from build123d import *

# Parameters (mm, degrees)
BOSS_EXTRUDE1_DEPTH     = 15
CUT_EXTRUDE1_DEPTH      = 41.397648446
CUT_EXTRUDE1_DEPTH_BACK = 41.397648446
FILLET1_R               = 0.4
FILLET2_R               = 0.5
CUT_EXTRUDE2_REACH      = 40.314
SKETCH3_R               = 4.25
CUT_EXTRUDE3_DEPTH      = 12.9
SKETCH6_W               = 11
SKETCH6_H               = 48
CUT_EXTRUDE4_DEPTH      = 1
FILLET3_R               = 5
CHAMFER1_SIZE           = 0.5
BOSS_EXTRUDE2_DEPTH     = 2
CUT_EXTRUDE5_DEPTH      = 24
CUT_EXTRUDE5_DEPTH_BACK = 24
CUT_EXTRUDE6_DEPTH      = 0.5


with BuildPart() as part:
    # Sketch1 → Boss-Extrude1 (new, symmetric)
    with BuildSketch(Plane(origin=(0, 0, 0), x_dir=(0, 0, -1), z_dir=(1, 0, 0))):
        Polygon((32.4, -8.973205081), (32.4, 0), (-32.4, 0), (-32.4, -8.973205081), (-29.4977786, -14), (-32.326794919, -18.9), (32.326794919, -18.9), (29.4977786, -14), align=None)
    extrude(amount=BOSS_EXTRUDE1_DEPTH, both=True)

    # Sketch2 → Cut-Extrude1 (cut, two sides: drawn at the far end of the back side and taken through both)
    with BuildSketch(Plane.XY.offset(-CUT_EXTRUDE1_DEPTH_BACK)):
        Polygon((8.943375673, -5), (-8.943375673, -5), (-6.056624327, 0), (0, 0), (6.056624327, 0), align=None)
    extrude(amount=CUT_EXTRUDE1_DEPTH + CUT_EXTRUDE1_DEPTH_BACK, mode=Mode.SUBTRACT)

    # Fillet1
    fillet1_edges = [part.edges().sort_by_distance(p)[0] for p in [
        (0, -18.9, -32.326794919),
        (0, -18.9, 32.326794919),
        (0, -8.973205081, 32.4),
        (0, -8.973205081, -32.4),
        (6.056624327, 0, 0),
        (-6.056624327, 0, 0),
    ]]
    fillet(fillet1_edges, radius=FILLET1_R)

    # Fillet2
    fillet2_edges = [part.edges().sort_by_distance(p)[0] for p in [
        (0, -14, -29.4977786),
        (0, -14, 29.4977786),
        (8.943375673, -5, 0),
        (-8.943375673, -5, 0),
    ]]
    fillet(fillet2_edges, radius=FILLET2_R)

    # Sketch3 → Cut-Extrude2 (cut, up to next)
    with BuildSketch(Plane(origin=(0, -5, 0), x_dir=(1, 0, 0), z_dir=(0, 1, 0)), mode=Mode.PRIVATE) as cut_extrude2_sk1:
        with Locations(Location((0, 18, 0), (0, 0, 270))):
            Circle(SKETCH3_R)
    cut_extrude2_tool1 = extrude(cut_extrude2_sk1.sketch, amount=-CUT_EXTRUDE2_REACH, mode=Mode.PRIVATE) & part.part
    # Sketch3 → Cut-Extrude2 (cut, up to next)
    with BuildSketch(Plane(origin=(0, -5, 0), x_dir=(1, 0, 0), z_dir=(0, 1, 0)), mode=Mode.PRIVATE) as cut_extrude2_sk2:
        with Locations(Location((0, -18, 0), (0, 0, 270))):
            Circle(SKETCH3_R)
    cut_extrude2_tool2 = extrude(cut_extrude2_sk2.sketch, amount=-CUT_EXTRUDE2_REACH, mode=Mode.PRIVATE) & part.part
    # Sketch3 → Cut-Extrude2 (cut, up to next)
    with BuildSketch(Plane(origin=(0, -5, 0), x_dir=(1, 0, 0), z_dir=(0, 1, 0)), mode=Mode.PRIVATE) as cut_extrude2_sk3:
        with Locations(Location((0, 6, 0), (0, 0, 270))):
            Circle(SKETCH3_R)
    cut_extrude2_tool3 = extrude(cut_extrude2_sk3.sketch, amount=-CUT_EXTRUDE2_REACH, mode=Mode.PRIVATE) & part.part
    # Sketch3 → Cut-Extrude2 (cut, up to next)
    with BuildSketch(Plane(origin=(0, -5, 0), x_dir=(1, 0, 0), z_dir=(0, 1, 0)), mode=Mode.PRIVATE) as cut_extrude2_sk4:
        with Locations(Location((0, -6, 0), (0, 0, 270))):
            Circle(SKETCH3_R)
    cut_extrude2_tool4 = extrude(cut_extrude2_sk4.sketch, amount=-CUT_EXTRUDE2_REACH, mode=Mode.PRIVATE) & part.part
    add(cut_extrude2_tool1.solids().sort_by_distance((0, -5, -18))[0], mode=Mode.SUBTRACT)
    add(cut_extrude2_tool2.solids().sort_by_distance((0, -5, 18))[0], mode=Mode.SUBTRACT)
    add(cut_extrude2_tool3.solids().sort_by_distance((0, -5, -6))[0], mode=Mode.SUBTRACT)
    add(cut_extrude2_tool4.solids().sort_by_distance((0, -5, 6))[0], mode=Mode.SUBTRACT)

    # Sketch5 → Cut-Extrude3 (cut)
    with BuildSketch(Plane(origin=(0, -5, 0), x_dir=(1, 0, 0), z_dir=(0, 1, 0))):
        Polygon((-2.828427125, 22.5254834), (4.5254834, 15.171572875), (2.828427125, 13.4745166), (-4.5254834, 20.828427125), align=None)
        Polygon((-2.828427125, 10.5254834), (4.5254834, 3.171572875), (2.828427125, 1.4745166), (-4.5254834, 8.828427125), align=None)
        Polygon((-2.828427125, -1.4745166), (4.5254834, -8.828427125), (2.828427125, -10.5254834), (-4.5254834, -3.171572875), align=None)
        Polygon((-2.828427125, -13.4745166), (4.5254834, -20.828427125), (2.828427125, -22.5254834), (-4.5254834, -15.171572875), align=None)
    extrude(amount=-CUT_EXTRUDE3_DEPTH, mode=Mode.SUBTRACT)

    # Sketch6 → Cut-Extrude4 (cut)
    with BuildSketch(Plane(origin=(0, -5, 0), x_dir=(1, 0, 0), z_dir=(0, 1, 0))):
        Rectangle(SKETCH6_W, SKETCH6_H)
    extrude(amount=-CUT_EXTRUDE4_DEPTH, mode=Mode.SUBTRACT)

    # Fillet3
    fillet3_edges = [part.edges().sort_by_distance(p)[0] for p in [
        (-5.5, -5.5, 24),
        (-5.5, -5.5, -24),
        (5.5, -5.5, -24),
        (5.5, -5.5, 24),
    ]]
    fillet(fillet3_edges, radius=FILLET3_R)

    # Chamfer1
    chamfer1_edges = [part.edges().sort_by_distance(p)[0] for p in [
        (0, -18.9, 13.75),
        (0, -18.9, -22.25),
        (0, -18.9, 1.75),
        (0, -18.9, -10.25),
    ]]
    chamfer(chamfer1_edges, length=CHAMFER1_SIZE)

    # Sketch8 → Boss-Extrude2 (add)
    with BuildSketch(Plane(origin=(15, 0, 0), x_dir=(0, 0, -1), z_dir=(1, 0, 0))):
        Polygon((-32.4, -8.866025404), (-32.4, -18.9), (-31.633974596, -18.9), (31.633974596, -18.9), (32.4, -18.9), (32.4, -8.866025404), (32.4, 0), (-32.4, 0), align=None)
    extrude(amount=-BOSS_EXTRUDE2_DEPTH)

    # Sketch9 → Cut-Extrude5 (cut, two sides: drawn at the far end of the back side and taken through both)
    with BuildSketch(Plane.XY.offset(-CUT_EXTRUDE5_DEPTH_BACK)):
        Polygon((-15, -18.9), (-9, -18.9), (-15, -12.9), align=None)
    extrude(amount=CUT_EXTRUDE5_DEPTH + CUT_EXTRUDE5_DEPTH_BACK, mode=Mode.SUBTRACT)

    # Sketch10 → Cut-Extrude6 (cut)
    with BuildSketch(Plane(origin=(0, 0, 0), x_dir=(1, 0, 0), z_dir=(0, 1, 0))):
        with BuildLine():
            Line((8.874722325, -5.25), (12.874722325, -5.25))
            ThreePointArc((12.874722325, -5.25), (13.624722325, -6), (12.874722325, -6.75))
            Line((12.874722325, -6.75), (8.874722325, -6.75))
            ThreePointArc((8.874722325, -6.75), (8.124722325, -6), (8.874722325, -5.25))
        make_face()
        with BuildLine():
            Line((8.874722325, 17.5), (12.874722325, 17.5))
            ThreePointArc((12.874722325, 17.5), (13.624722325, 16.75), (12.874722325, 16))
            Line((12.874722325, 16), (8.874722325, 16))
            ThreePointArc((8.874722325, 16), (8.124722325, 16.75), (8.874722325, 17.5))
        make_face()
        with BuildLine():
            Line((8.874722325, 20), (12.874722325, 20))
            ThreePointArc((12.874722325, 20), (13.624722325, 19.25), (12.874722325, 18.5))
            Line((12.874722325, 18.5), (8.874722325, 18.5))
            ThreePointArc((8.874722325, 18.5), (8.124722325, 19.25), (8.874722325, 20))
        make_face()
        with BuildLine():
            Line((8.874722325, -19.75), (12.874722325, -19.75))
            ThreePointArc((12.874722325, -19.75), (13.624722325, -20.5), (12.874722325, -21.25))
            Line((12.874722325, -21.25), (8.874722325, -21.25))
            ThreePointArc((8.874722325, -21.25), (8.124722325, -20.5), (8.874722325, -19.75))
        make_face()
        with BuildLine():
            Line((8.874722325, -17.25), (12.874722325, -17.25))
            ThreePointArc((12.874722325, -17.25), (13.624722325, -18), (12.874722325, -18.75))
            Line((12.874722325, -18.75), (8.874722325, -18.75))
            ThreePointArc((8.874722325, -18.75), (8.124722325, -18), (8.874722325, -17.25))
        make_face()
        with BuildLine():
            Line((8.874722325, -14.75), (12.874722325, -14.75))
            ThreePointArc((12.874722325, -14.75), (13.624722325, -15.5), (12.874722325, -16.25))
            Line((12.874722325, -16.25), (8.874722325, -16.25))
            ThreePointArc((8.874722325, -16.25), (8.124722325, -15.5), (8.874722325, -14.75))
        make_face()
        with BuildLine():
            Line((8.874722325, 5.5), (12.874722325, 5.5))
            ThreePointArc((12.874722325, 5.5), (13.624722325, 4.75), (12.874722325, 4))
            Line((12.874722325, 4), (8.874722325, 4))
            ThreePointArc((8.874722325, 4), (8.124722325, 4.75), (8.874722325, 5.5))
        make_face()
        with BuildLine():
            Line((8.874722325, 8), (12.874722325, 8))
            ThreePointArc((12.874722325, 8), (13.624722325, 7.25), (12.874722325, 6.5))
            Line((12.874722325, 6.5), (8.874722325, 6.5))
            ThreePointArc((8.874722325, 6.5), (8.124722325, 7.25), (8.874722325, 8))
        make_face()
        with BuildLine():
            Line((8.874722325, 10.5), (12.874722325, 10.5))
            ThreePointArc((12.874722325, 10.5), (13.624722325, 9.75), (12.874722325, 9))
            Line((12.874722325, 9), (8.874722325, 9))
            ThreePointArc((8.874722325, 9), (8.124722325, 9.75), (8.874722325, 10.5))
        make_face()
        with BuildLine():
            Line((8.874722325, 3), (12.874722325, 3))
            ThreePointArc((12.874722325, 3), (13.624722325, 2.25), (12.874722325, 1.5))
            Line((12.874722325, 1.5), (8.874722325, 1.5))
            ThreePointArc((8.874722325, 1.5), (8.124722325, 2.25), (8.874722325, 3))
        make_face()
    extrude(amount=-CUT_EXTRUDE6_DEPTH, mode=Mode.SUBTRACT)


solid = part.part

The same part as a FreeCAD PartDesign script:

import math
import FreeCAD as App
import Part
import Sketcher
Q = App.Units.Quantity


def edges_at(feature, points):
    """Names of the edges that pass closest to the given points."""
    edges = feature.Shape.Edges
    near = lambda p: min(range(len(edges)), key=lambda i: edges[i].distToShape(Part.Vertex(*p))[0])
    return sorted({f"Edge{near(p) + 1}" for p in points})


def add_polygon(sketch, points):
    """Adds a closed chain of lines whose ends are joined by coincident constraints."""
    first, n = sketch.GeometryCount, len(points)
    for a, b in zip(points, points[1:] + points[:1]):
        sketch.addGeometry(Part.LineSegment(App.Vector(*a, 0), App.Vector(*b, 0)), False)
    for i in range(n):
        sketch.addConstraint(Sketcher.Constraint("Coincident", first + i, 2, first + (i + 1) % n, 1))

doc = App.newDocument("Part")
body = doc.addObject("PartDesign::Body", "Body")

# Sketch on YZ plane
sketch1 = doc.addObject("Sketcher::SketchObject", "Sketch")
body.addObject(sketch1)
sketch1.AttachmentSupport = (doc.YZ_Plane, [""])
sketch1.MapMode = "FlatFace"
add_polygon(sketch1, [(-9, -32), (0, -32), (0, 32), (-9, 32), (-14, 29), (-19, 32), (-19, -32), (-14, -29)])  # lines 0-7
sketch1.addConstraint(Sketcher.Constraint("Horizontal", 0))
sketch1.addConstraint(Sketcher.Constraint("Vertical", 1))
sketch1.addConstraint(Sketcher.Constraint("Horizontal", 2))
sketch1.addConstraint(Sketcher.Constraint("Vertical", 5))
sketch1.addConstraint(Sketcher.Constraint("Symmetric", 0, 2, 1, 2, -1, 1))
sketch1.addConstraint(Sketcher.Constraint("Symmetric", 3, 2, 6, 2, -1))
sketch1.addConstraint(Sketcher.Constraint("Parallel", 3, 6))
sketch1.addConstraint(Sketcher.Constraint("Parallel", 4, 7))
sketch1.addConstraint(Sketcher.Constraint("Vertical", 2, 2, 7, 2))
sketch1.addConstraint(Sketcher.Constraint("Angle", 3, Q("-150 deg")))
sketch1.addConstraint(Sketcher.Constraint("DistanceY", 1, 1, 1, 2, Q("64.8 mm")))
sketch1.addConstraint(Sketcher.Constraint("DistanceX", 3, 2, -1, 1, Q("14 mm")))
sketch1.addConstraint(Sketcher.Constraint("DistanceX", 4, 2, -1, 1, Q("18.9 mm")))
sketch1.addConstraint(Sketcher.Constraint("DistanceY", 5, 2, 5, 1, Q("64.65359 mm")))
pad1 = doc.addObject("PartDesign::Pad", "Pad")
body.addObject(pad1)
pad1.Profile = sketch1
pad1.Length = 30
pad1.Midplane = True

# Sketch on XY plane
sketch2 = doc.addObject("Sketcher::SketchObject", "Sketch001")
body.addObject(sketch2)
sketch2.AttachmentSupport = (doc.XY_Plane, [""])
sketch2.MapMode = "FlatFace"
add_polygon(sketch2, [(-9, -5), (9, -5), (6, 0), (-6, 0)])  # lines 0-3
sketch2.addConstraint(Sketcher.Constraint("Horizontal", 0))
sketch2.addConstraint(Sketcher.Constraint("Horizontal", 2))
sketch2.addConstraint(Sketcher.Constraint("Symmetric", 1, 2, 2, 2, -1, 1))
sketch2.addConstraint(Sketcher.Constraint("Equal", 1, 3))
sketch2.addConstraint(Sketcher.Constraint("Angle", 1, Q("120 deg")))
sketch2.addConstraint(Sketcher.Constraint("DistanceY", 0, 2, -1, 1, Q("5 mm")))
sketch2.addConstraint(Sketcher.Constraint("DistanceX", 2, 2, 0, 2, Q("15 mm")))
pocket1 = doc.addObject("PartDesign::Pocket", "Pocket")
body.addObject(pocket1)
pocket1.Profile = sketch2
pocket1.Type = "ThroughAll"
pocket1.Midplane = True
doc.recompute()

fillet = doc.addObject("PartDesign::Fillet", "Fillet")
body.addObject(fillet)
fillet.Base = (pocket1, edges_at(pocket1, [
    (0, -18.9, -32.327),
    (0, -18.9, 32.327),
    (0, -8.973, 32.4),
    (0, -8.973, -32.4),
    (6.057, 0, 0),
    (-6.057, 0, 0),
]))
fillet.Radius = 0.4
doc.recompute()

fillet2 = doc.addObject("PartDesign::Fillet", "Fillet001")
body.addObject(fillet2)
fillet2.Base = (fillet, edges_at(fillet, [
    (0, -14, -29.498),
    (0, -14, 29.498),
    (8.943, -5, 0),
    (-8.943, -5, 0),
]))
fillet2.Radius = 0.5

# Sketch on XZ plane
sketch3 = doc.addObject("Sketcher::SketchObject", "Sketch002")
body.addObject(sketch3)
sketch3.AttachmentSupport = (doc.XZ_Plane, [""])
sketch3.MapMode = "FlatFace"
sketch3.AttachmentOffset = App.Placement(App.Vector(0, 0, 5), App.Rotation())
sketch3.addGeometry(Part.Circle(App.Vector(0, -18, 0), App.Vector(0, 0, 1), 4.2), False)
sketch3.addConstraint(Sketcher.Constraint("PointOnObject", 0, 3, -2))
sketch3.addConstraint(Sketcher.Constraint("Diameter", 0, Q("8.5 mm")))
sketch3.addConstraint(Sketcher.Constraint("DistanceY", 0, 3, -1, 1, Q("18 mm")))
pocket2 = doc.addObject("PartDesign::Pocket", "Pocket001")
body.addObject(pocket2)
pocket2.Profile = sketch3
pocket2.Type = "UpToFirst"
pocket2.Reversed = True

# Sketch on XZ plane
sketch4 = doc.addObject("Sketcher::SketchObject", "Sketch003")
body.addObject(sketch4)
sketch4.AttachmentSupport = (doc.XZ_Plane, [""])
sketch4.MapMode = "FlatFace"
sketch4.AttachmentOffset = App.Placement(App.Vector(0, 0, 5), App.Rotation())
sketch4.addGeometry(Part.Circle(App.Vector(0, 18, 0), App.Vector(0, 0, 1), 4.2), False)
sketch4.addConstraint(Sketcher.Constraint("PointOnObject", 0, 3, -2))
sketch4.addConstraint(Sketcher.Constraint("Diameter", 0, Q("8.5 mm")))
sketch4.addConstraint(Sketcher.Constraint("DistanceY", -1, 1, 0, 3, Q("18 mm")))
pocket3 = doc.addObject("PartDesign::Pocket", "Pocket002")
body.addObject(pocket3)
pocket3.Profile = sketch4
pocket3.Type = "UpToFirst"
pocket3.Reversed = True

# Sketch on XZ plane
sketch5 = doc.addObject("Sketcher::SketchObject", "Sketch004")
body.addObject(sketch5)
sketch5.AttachmentSupport = (doc.XZ_Plane, [""])
sketch5.MapMode = "FlatFace"
sketch5.AttachmentOffset = App.Placement(App.Vector(0, 0, 5), App.Rotation())
sketch5.addGeometry(Part.Circle(App.Vector(0, -6, 0), App.Vector(0, 0, 1), 4.2), False)
sketch5.addConstraint(Sketcher.Constraint("PointOnObject", 0, 3, -2))
sketch5.addConstraint(Sketcher.Constraint("Diameter", 0, Q("8.5 mm")))
sketch5.addConstraint(Sketcher.Constraint("DistanceY", 0, 3, -1, 1, Q("6 mm")))
pocket4 = doc.addObject("PartDesign::Pocket", "Pocket003")
body.addObject(pocket4)
pocket4.Profile = sketch5
pocket4.Type = "UpToFirst"
pocket4.Reversed = True

# Sketch on XZ plane
sketch6 = doc.addObject("Sketcher::SketchObject", "Sketch005")
body.addObject(sketch6)
sketch6.AttachmentSupport = (doc.XZ_Plane, [""])
sketch6.MapMode = "FlatFace"
sketch6.AttachmentOffset = App.Placement(App.Vector(0, 0, 5), App.Rotation())
sketch6.addGeometry(Part.Circle(App.Vector(0, 6, 0), App.Vector(0, 0, 1), 4.2), False)
sketch6.addConstraint(Sketcher.Constraint("PointOnObject", 0, 3, -2))
sketch6.addConstraint(Sketcher.Constraint("Diameter", 0, Q("8.5 mm")))
sketch6.addConstraint(Sketcher.Constraint("DistanceY", -1, 1, 0, 3, Q("6 mm")))
pocket5 = doc.addObject("PartDesign::Pocket", "Pocket004")
body.addObject(pocket5)
pocket5.Profile = sketch6
pocket5.Type = "UpToFirst"
pocket5.Reversed = True

# Sketch on XZ plane
sketch7 = doc.addObject("Sketcher::SketchObject", "Sketch006")
body.addObject(sketch7)
sketch7.AttachmentSupport = (doc.XZ_Plane, [""])
sketch7.MapMode = "FlatFace"
sketch7.AttachmentOffset = App.Placement(App.Vector(0, 0, 5), App.Rotation())
add_polygon(sketch7, [(4.5, -15.2), (-2.8, -22.5), (-4.5, -20.8), (2.8, -13.5)])  # lines 0-3
add_polygon(sketch7, [(4.5, -3.2), (-2.8, -10.5), (-4.5, -8.8), (2.8, -1.5)])  # lines 4-7
add_polygon(sketch7, [(4.5, 8.8), (-2.8, 1.5), (-4.5, 3.2), (2.8, 10.5)])  # lines 8-11
add_polygon(sketch7, [(4.5, 20.8), (-2.8, 13.5), (-4.5, 15.2), (2.8, 22.5)])  # lines 12-15
sketch7.addConstraint(Sketcher.Constraint("Symmetric", 6, 2, 8, 2, -1, 1))
sketch7.addConstraint(Sketcher.Constraint("Symmetric", 7, 2, 9, 2, -1, 1))
sketch7.addConstraint(Sketcher.Constraint("Symmetric", 4, 2, 10, 2, -1, 1))
sketch7.addConstraint(Sketcher.Constraint("Symmetric", 5, 2, 11, 2, -1, 1))
sketch7.addConstraint(Sketcher.Constraint("Symmetric", 2, 2, 12, 2, -1, 1))
sketch7.addConstraint(Sketcher.Constraint("Symmetric", 3, 2, 13, 2, -1, 1))
sketch7.addConstraint(Sketcher.Constraint("Symmetric", 0, 2, 14, 2, -1, 1))
sketch7.addConstraint(Sketcher.Constraint("Symmetric", 1, 2, 15, 2, -1, 1))
sketch7.addConstraint(Sketcher.Constraint("Perpendicular", 0, 1))
sketch7.addConstraint(Sketcher.Constraint("Perpendicular", 1, 2))
sketch7.addConstraint(Sketcher.Constraint("Perpendicular", 2, 3))
sketch7.addConstraint(Sketcher.Constraint("Perpendicular", 3, 4))
sketch7.addConstraint(Sketcher.Constraint("Perpendicular", 4, 5))
sketch7.addConstraint(Sketcher.Constraint("Perpendicular", 5, 6))
sketch7.addConstraint(Sketcher.Constraint("Perpendicular", 6, 7))
sketch7.addConstraint(Sketcher.Constraint("Vertical", 0, 2, 4, 2))
sketch7.addConstraint(Sketcher.Constraint("Vertical", 1, 2, 5, 2))
sketch7.addConstraint(Sketcher.Constraint("Vertical", 2, 2, 6, 2))
sketch7.addConstraint(Sketcher.Constraint("Vertical", 4, 2, 8, 2))
sketch7.addConstraint(Sketcher.Constraint("Angle", 0, Q("-135 deg")))
sketch7.addConstraint(Sketcher.Constraint("DistanceY", 0, 2, 4, 2, Q("12 mm")))
sketch7.addConstraint(Sketcher.Constraint("DistanceY", 4, 2, 8, 2, Q("12 mm")))
sketch7.addConstraint(Sketcher.Constraint("Distance", 0, Q("10.4 mm")))
sketch7.addConstraint(Sketcher.Constraint("Distance", 1, Q("2.4 mm")))
pocket6 = doc.addObject("PartDesign::Pocket", "Pocket005")
body.addObject(pocket6)
pocket6.Profile = sketch7
pocket6.Length = 12.9
pocket6.Reversed = True

# Sketch on XZ plane
sketch8 = doc.addObject("Sketcher::SketchObject", "Sketch007")
body.addObject(sketch8)
sketch8.AttachmentSupport = (doc.XZ_Plane, [""])
sketch8.MapMode = "FlatFace"
sketch8.AttachmentOffset = App.Placement(App.Vector(0, 0, 5), App.Rotation())
add_polygon(sketch8, [(-6, -24), (-6, 24), (6, 24), (6, -24)])  # lines 0-3
sketch8.addConstraint(Sketcher.Constraint("Vertical", 0))
sketch8.addConstraint(Sketcher.Constraint("Horizontal", 1))
sketch8.addConstraint(Sketcher.Constraint("Vertical", 2))
sketch8.addConstraint(Sketcher.Constraint("Horizontal", 3))
sketch8.addConstraint(Sketcher.Constraint("Symmetric", 0, 2, 2, 2, -1, 1))
sketch8.addConstraint(Sketcher.Constraint("DistanceX", 1, 1, 1, 2, Q("11 mm")))
sketch8.addConstraint(Sketcher.Constraint("DistanceY", 0, 1, 0, 2, Q("48 mm")))
pocket7 = doc.addObject("PartDesign::Pocket", "Pocket006")
body.addObject(pocket7)
pocket7.Profile = sketch8
pocket7.Length = 1
pocket7.Reversed = True
doc.recompute()

fillet3 = doc.addObject("PartDesign::Fillet", "Fillet002")
body.addObject(fillet3)
fillet3.Base = (pocket7, edges_at(pocket7, [
    (-5.5, -5.5, 24),
    (-5.5, -5.5, -24),
    (5.5, -5.5, -24),
    (5.5, -5.5, 24),
]))
fillet3.Radius = 5
doc.recompute()

chamfer = doc.addObject("PartDesign::Chamfer", "Chamfer")
body.addObject(chamfer)
chamfer.Base = (fillet3, edges_at(fillet3, [
    (0, -18.9, 13.75),
    (0, -18.9, -22.25),
    (0, -18.9, 1.75),
    (0, -18.9, -10.25),
]))
chamfer.Size = 0.5

# Sketch on YZ plane
sketch9 = doc.addObject("Sketcher::SketchObject", "Sketch008")
body.addObject(sketch9)
sketch9.AttachmentSupport = (doc.YZ_Plane, [""])
sketch9.MapMode = "FlatFace"
sketch9.AttachmentOffset = App.Placement(App.Vector(0, 0, 15), App.Rotation())
add_polygon(sketch9, [(-19, 32), (-19, -32), (0, -32), (0, 32)])  # lines 0-3
sketch9.addConstraint(Sketcher.Constraint("Vertical", 0))
sketch9.addConstraint(Sketcher.Constraint("Horizontal", 1))
sketch9.addConstraint(Sketcher.Constraint("Vertical", 2))
sketch9.addConstraint(Sketcher.Constraint("Horizontal", 3))
sketch9.addConstraint(Sketcher.Constraint("Symmetric", 1, 2, 2, 2, -1, 1))
sketch9.addConstraint(Sketcher.Constraint("DistanceX", 1, 1, 1, 2, Q("18.9 mm")))
sketch9.addConstraint(Sketcher.Constraint("DistanceY", 0, 2, 0, 1, Q("64.8 mm")))
pad2 = doc.addObject("PartDesign::Pad", "Pad001")
body.addObject(pad2)
pad2.Profile = sketch9
pad2.Length = 2
pad2.Reversed = True

# Sketch on XY plane
sketch10 = doc.addObject("Sketcher::SketchObject", "Sketch009")
body.addObject(sketch10)
sketch10.AttachmentSupport = (doc.XY_Plane, [""])
sketch10.MapMode = "FlatFace"
add_polygon(sketch10, [(-15, -19), (-9, -19), (-15, -13)])  # lines 0-2
sketch10.addConstraint(Sketcher.Constraint("Horizontal", 0))
sketch10.addConstraint(Sketcher.Constraint("Vertical", 2))
sketch10.addConstraint(Sketcher.Constraint("Equal", 0, 2))
sketch10.addConstraint(Sketcher.Constraint("DistanceX", 0, 1, 0, 2, Q("6 mm")))
sketch10.addConstraint(Sketcher.Constraint("DistanceX", 0, 2, -1, 1, Q("9 mm")))
sketch10.addConstraint(Sketcher.Constraint("DistanceY", 0, 2, -1, 1, Q("18.9 mm")))
pocket8 = doc.addObject("PartDesign::Pocket", "Pocket007")
body.addObject(pocket8)
pocket8.Profile = sketch10
pocket8.Type = "TwoLengths"
pocket8.Length = 24
pocket8.Length2 = 24
pocket8.Reversed = True

# Sketch on XZ plane
sketch11 = doc.addObject("Sketcher::SketchObject", "Sketch010")
body.addObject(sketch11)
sketch11.AttachmentSupport = (doc.XZ_Plane, [""])
sketch11.MapMode = "FlatFace"
sketch11.addGeometry(Part.LineSegment(App.Vector(12.9, 5.2, 0), App.Vector(8.9, 5.2, 0)), False)
sketch11.addGeometry(Part.ArcOfCircle(Part.Circle(App.Vector(8.9, 6, 0), App.Vector(0, 0, 1), 0.8), math.radians(90), math.radians(270)), False)
sketch11.addGeometry(Part.LineSegment(App.Vector(8.9, 6.8, 0), App.Vector(12.9, 6.8, 0)), False)
sketch11.addGeometry(Part.ArcOfCircle(Part.Circle(App.Vector(12.9, 6, 0), App.Vector(0, 0, 1), 0.8), math.radians(-90), math.radians(90)), False)
sketch11.addGeometry(Part.LineSegment(App.Vector(12.9, -17.5, 0), App.Vector(8.9, -17.5, 0)), False)
sketch11.addGeometry(Part.ArcOfCircle(Part.Circle(App.Vector(8.9, -16.8, 0), App.Vector(0, 0, 1), 0.8), math.radians(90), math.radians(270)), False)
sketch11.addGeometry(Part.LineSegment(App.Vector(8.9, -16, 0), App.Vector(12.9, -16, 0)), False)
sketch11.addGeometry(Part.ArcOfCircle(Part.Circle(App.Vector(12.9, -16.8, 0), App.Vector(0, 0, 1), 0.8), math.radians(-90), math.radians(90)), False)
sketch11.addGeometry(Part.LineSegment(App.Vector(12.9, -20, 0), App.Vector(8.9, -20, 0)), False)
sketch11.addGeometry(Part.ArcOfCircle(Part.Circle(App.Vector(8.9, -19.2, 0), App.Vector(0, 0, 1), 0.8), math.radians(90), math.radians(270)), False)
sketch11.addGeometry(Part.LineSegment(App.Vector(8.9, -18.5, 0), App.Vector(12.9, -18.5, 0)), False)
sketch11.addGeometry(Part.ArcOfCircle(Part.Circle(App.Vector(12.9, -19.2, 0), App.Vector(0, 0, 1), 0.8), math.radians(-90), math.radians(90)), False)
sketch11.addGeometry(Part.LineSegment(App.Vector(12.9, 19.8, 0), App.Vector(8.9, 19.8, 0)), False)
sketch11.addGeometry(Part.ArcOfCircle(Part.Circle(App.Vector(8.9, 20.5, 0), App.Vector(0, 0, 1), 0.8), math.radians(90), math.radians(270)), False)
sketch11.addGeometry(Part.LineSegment(App.Vector(8.9, 21.2, 0), App.Vector(12.9, 21.2, 0)), False)
sketch11.addGeometry(Part.ArcOfCircle(Part.Circle(App.Vector(12.9, 20.5, 0), App.Vector(0, 0, 1), 0.8), math.radians(-90), math.radians(90)), False)
sketch11.addGeometry(Part.LineSegment(App.Vector(12.9, 17.2, 0), App.Vector(8.9, 17.2, 0)), False)
sketch11.addGeometry(Part.ArcOfCircle(Part.Circle(App.Vector(8.9, 18, 0), App.Vector(0, 0, 1), 0.8), math.radians(90), math.radians(270)), False)
sketch11.addGeometry(Part.LineSegment(App.Vector(8.9, 18.8, 0), App.Vector(12.9, 18.8, 0)), False)
sketch11.addGeometry(Part.ArcOfCircle(Part.Circle(App.Vector(12.9, 18, 0), App.Vector(0, 0, 1), 0.8), math.radians(-90), math.radians(90)), False)
sketch11.addGeometry(Part.LineSegment(App.Vector(12.9, 14.8, 0), App.Vector(8.9, 14.8, 0)), False)
sketch11.addGeometry(Part.ArcOfCircle(Part.Circle(App.Vector(8.9, 15.5, 0), App.Vector(0, 0, 1), 0.8), math.radians(90), math.radians(270)), False)
sketch11.addGeometry(Part.LineSegment(App.Vector(8.9, 16.2, 0), App.Vector(12.9, 16.2, 0)), False)
sketch11.addGeometry(Part.ArcOfCircle(Part.Circle(App.Vector(12.9, 15.5, 0), App.Vector(0, 0, 1), 0.8), math.radians(-90), math.radians(90)), False)
sketch11.addGeometry(Part.LineSegment(App.Vector(12.9, -5.5, 0), App.Vector(8.9, -5.5, 0)), False)
sketch11.addGeometry(Part.ArcOfCircle(Part.Circle(App.Vector(8.9, -4.8, 0), App.Vector(0, 0, 1), 0.8), math.radians(90), math.radians(270)), False)
sketch11.addGeometry(Part.LineSegment(App.Vector(8.9, -4, 0), App.Vector(12.9, -4, 0)), False)
sketch11.addGeometry(Part.ArcOfCircle(Part.Circle(App.Vector(12.9, -4.8, 0), App.Vector(0, 0, 1), 0.8), math.radians(-90), math.radians(90)), False)
sketch11.addGeometry(Part.LineSegment(App.Vector(12.9, -8, 0), App.Vector(8.9, -8, 0)), False)
sketch11.addGeometry(Part.ArcOfCircle(Part.Circle(App.Vector(8.9, -7.2, 0), App.Vector(0, 0, 1), 0.8), math.radians(90), math.radians(270)), False)
sketch11.addGeometry(Part.LineSegment(App.Vector(8.9, -6.5, 0), App.Vector(12.9, -6.5, 0)), False)
sketch11.addGeometry(Part.ArcOfCircle(Part.Circle(App.Vector(12.9, -7.2, 0), App.Vector(0, 0, 1), 0.8), math.radians(-90), math.radians(90)), False)
sketch11.addGeometry(Part.LineSegment(App.Vector(12.9, -10.5, 0), App.Vector(8.9, -10.5, 0)), False)
sketch11.addGeometry(Part.ArcOfCircle(Part.Circle(App.Vector(8.9, -9.8, 0), App.Vector(0, 0, 1), 0.8), math.radians(90), math.radians(270)), False)
sketch11.addGeometry(Part.LineSegment(App.Vector(8.9, -9, 0), App.Vector(12.9, -9, 0)), False)
sketch11.addGeometry(Part.ArcOfCircle(Part.Circle(App.Vector(12.9, -9.8, 0), App.Vector(0, 0, 1), 0.8), math.radians(-90), math.radians(90)), False)
sketch11.addGeometry(Part.LineSegment(App.Vector(12.9, -3, 0), App.Vector(8.9, -3, 0)), False)
sketch11.addGeometry(Part.ArcOfCircle(Part.Circle(App.Vector(8.9, -2.2, 0), App.Vector(0, 0, 1), 0.8), math.radians(90), math.radians(270)), False)
sketch11.addGeometry(Part.LineSegment(App.Vector(8.9, -1.5, 0), App.Vector(12.9, -1.5, 0)), False)
sketch11.addGeometry(Part.ArcOfCircle(Part.Circle(App.Vector(12.9, -2.2, 0), App.Vector(0, 0, 1), 0.8), math.radians(-90), math.radians(90)), False)
sketch11.addConstraint(Sketcher.Constraint("Tangent", 0, 2, 1, 2))
sketch11.addConstraint(Sketcher.Constraint("Tangent", 1, 1, 2, 1))
sketch11.addConstraint(Sketcher.Constraint("Tangent", 2, 2, 3, 2))
sketch11.addConstraint(Sketcher.Constraint("Tangent", 3, 1, 0, 1))
sketch11.addConstraint(Sketcher.Constraint("Tangent", 4, 2, 5, 2))
sketch11.addConstraint(Sketcher.Constraint("Tangent", 5, 1, 6, 1))
sketch11.addConstraint(Sketcher.Constraint("Tangent", 6, 2, 7, 2))
sketch11.addConstraint(Sketcher.Constraint("Tangent", 7, 1, 4, 1))
sketch11.addConstraint(Sketcher.Constraint("Tangent", 8, 2, 9, 2))
sketch11.addConstraint(Sketcher.Constraint("Tangent", 9, 1, 10, 1))
sketch11.addConstraint(Sketcher.Constraint("Tangent", 10, 2, 11, 2))
sketch11.addConstraint(Sketcher.Constraint("Tangent", 11, 1, 8, 1))
sketch11.addConstraint(Sketcher.Constraint("Tangent", 12, 2, 13, 2))
sketch11.addConstraint(Sketcher.Constraint("Tangent", 13, 1, 14, 1))
sketch11.addConstraint(Sketcher.Constraint("Tangent", 14, 2, 15, 2))
sketch11.addConstraint(Sketcher.Constraint("Tangent", 15, 1, 12, 1))
sketch11.addConstraint(Sketcher.Constraint("Tangent", 16, 2, 17, 2))
sketch11.addConstraint(Sketcher.Constraint("Tangent", 17, 1, 18, 1))
sketch11.addConstraint(Sketcher.Constraint("Tangent", 18, 2, 19, 2))
sketch11.addConstraint(Sketcher.Constraint("Tangent", 19, 1, 16, 1))
sketch11.addConstraint(Sketcher.Constraint("Tangent", 20, 2, 21, 2))
sketch11.addConstraint(Sketcher.Constraint("Tangent", 21, 1, 22, 1))
sketch11.addConstraint(Sketcher.Constraint("Tangent", 22, 2, 23, 2))
sketch11.addConstraint(Sketcher.Constraint("Tangent", 23, 1, 20, 1))
sketch11.addConstraint(Sketcher.Constraint("Tangent", 24, 2, 25, 2))
sketch11.addConstraint(Sketcher.Constraint("Tangent", 25, 1, 26, 1))
sketch11.addConstraint(Sketcher.Constraint("Tangent", 26, 2, 27, 2))
sketch11.addConstraint(Sketcher.Constraint("Tangent", 27, 1, 24, 1))
sketch11.addConstraint(Sketcher.Constraint("Tangent", 28, 2, 29, 2))
sketch11.addConstraint(Sketcher.Constraint("Tangent", 29, 1, 30, 1))
sketch11.addConstraint(Sketcher.Constraint("Tangent", 30, 2, 31, 2))
sketch11.addConstraint(Sketcher.Constraint("Tangent", 31, 1, 28, 1))
sketch11.addConstraint(Sketcher.Constraint("Tangent", 32, 2, 33, 2))
sketch11.addConstraint(Sketcher.Constraint("Tangent", 33, 1, 34, 1))
sketch11.addConstraint(Sketcher.Constraint("Tangent", 34, 2, 35, 2))
sketch11.addConstraint(Sketcher.Constraint("Tangent", 35, 1, 32, 1))
sketch11.addConstraint(Sketcher.Constraint("Tangent", 36, 2, 37, 2))
sketch11.addConstraint(Sketcher.Constraint("Tangent", 37, 1, 38, 1))
sketch11.addConstraint(Sketcher.Constraint("Tangent", 38, 2, 39, 2))
sketch11.addConstraint(Sketcher.Constraint("Tangent", 39, 1, 36, 1))
sketch11.addConstraint(Sketcher.Constraint("Horizontal", 0))
sketch11.addConstraint(Sketcher.Constraint("Horizontal", 2))
sketch11.addConstraint(Sketcher.Constraint("Horizontal", 4))
sketch11.addConstraint(Sketcher.Constraint("Horizontal", 6))
sketch11.addConstraint(Sketcher.Constraint("Horizontal", 8))
sketch11.addConstraint(Sketcher.Constraint("Horizontal", 10))
sketch11.addConstraint(Sketcher.Constraint("Horizontal", 12))
sketch11.addConstraint(Sketcher.Constraint("Horizontal", 14))
sketch11.addConstraint(Sketcher.Constraint("Horizontal", 16))
sketch11.addConstraint(Sketcher.Constraint("Horizontal", 18))
sketch11.addConstraint(Sketcher.Constraint("Horizontal", 20))
sketch11.addConstraint(Sketcher.Constraint("Horizontal", 22))
sketch11.addConstraint(Sketcher.Constraint("Horizontal", 24))
sketch11.addConstraint(Sketcher.Constraint("Horizontal", 26))
sketch11.addConstraint(Sketcher.Constraint("Horizontal", 28))
sketch11.addConstraint(Sketcher.Constraint("Horizontal", 30))
sketch11.addConstraint(Sketcher.Constraint("Horizontal", 32))
sketch11.addConstraint(Sketcher.Constraint("Horizontal", 34))
sketch11.addConstraint(Sketcher.Constraint("Horizontal", 36))
sketch11.addConstraint(Sketcher.Constraint("Horizontal", 38))
sketch11.addConstraint(Sketcher.Constraint("Equal", 3, 5))
sketch11.addConstraint(Sketcher.Constraint("Equal", 7, 9))
sketch11.addConstraint(Sketcher.Constraint("Equal", 11, 13))
sketch11.addConstraint(Sketcher.Constraint("Equal", 15, 17))
sketch11.addConstraint(Sketcher.Constraint("Equal", 19, 21))
sketch11.addConstraint(Sketcher.Constraint("Equal", 23, 25))
sketch11.addConstraint(Sketcher.Constraint("Equal", 27, 29))
sketch11.addConstraint(Sketcher.Constraint("Equal", 31, 33))
sketch11.addConstraint(Sketcher.Constraint("Equal", 35, 37))
sketch11.addConstraint(Sketcher.Constraint("Vertical", 1, 3, 5, 3))
sketch11.addConstraint(Sketcher.Constraint("Vertical", 3, 3, 7, 3))
sketch11.addConstraint(Sketcher.Constraint("Vertical", 5, 3, 9, 3))
sketch11.addConstraint(Sketcher.Constraint("Vertical", 7, 3, 11, 3))
sketch11.addConstraint(Sketcher.Constraint("Vertical", 9, 3, 13, 3))
sketch11.addConstraint(Sketcher.Constraint("Vertical", 11, 3, 15, 3))
sketch11.addConstraint(Sketcher.Constraint("Vertical", 13, 3, 17, 3))
sketch11.addConstraint(Sketcher.Constraint("Vertical", 15, 3, 19, 3))
sketch11.addConstraint(Sketcher.Constraint("Vertical", 17, 3, 21, 3))
sketch11.addConstraint(Sketcher.Constraint("Vertical", 19, 3, 23, 3))
sketch11.addConstraint(Sketcher.Constraint("Vertical", 21, 3, 25, 3))
sketch11.addConstraint(Sketcher.Constraint("Vertical", 23, 3, 27, 3))
sketch11.addConstraint(Sketcher.Constraint("Vertical", 25, 3, 29, 3))
sketch11.addConstraint(Sketcher.Constraint("Vertical", 27, 3, 31, 3))
sketch11.addConstraint(Sketcher.Constraint("Vertical", 29, 3, 33, 3))
sketch11.addConstraint(Sketcher.Constraint("Vertical", 31, 3, 35, 3))
sketch11.addConstraint(Sketcher.Constraint("Vertical", 33, 3, 37, 3))
sketch11.addConstraint(Sketcher.Constraint("Vertical", 35, 3, 39, 3))
sketch11.addConstraint(Sketcher.Constraint("DistanceX", 0, 2, 0, 1, Q("4 mm")))
sketch11.addConstraint(Sketcher.Constraint("Radius", 1, Q("0.75 mm")))
sketch11.addConstraint(Sketcher.Constraint("DistanceY", -1, 1, 1, 3, Q("6 mm")))
sketch11.addConstraint(Sketcher.Constraint("DistanceY", -1, 1, 17, 3, Q("18 mm")))
sketch11.addConstraint(Sketcher.Constraint("DistanceY", 5, 1, -1, 1, Q("16 mm")))
sketch11.addConstraint(Sketcher.Constraint("DistanceY", 8, 2, -1, 1, Q("20 mm")))
sketch11.addConstraint(Sketcher.Constraint("DistanceY", 25, 1, -1, 1, Q("4 mm")))
sketch11.addConstraint(Sketcher.Constraint("DistanceY", 28, 2, -1, 1, Q("8 mm")))
sketch11.addConstraint(Sketcher.Constraint("DistanceY", 33, 1, -1, 1, Q("9 mm")))
sketch11.addConstraint(Sketcher.Constraint("DistanceY", 36, 2, -1, 1, Q("3 mm")))
sketch11.addConstraint(Sketcher.Constraint("DistanceY", 21, 3, 13, 3, Q("5 mm")))
sketch11.addConstraint(Sketcher.Constraint("DistanceY", 16, 2, 13, 1, Q("4 mm")))
sketch11.addConstraint(Sketcher.Constraint("DistanceX", -1, 1, 1, 3, Q("8.874722 mm")))
pocket9 = doc.addObject("PartDesign::Pocket", "Pocket008")
body.addObject(pocket9)
pocket9.Profile = sketch11
pocket9.Length = 0.5
pocket9.Reversed = True

doc.recompute()
